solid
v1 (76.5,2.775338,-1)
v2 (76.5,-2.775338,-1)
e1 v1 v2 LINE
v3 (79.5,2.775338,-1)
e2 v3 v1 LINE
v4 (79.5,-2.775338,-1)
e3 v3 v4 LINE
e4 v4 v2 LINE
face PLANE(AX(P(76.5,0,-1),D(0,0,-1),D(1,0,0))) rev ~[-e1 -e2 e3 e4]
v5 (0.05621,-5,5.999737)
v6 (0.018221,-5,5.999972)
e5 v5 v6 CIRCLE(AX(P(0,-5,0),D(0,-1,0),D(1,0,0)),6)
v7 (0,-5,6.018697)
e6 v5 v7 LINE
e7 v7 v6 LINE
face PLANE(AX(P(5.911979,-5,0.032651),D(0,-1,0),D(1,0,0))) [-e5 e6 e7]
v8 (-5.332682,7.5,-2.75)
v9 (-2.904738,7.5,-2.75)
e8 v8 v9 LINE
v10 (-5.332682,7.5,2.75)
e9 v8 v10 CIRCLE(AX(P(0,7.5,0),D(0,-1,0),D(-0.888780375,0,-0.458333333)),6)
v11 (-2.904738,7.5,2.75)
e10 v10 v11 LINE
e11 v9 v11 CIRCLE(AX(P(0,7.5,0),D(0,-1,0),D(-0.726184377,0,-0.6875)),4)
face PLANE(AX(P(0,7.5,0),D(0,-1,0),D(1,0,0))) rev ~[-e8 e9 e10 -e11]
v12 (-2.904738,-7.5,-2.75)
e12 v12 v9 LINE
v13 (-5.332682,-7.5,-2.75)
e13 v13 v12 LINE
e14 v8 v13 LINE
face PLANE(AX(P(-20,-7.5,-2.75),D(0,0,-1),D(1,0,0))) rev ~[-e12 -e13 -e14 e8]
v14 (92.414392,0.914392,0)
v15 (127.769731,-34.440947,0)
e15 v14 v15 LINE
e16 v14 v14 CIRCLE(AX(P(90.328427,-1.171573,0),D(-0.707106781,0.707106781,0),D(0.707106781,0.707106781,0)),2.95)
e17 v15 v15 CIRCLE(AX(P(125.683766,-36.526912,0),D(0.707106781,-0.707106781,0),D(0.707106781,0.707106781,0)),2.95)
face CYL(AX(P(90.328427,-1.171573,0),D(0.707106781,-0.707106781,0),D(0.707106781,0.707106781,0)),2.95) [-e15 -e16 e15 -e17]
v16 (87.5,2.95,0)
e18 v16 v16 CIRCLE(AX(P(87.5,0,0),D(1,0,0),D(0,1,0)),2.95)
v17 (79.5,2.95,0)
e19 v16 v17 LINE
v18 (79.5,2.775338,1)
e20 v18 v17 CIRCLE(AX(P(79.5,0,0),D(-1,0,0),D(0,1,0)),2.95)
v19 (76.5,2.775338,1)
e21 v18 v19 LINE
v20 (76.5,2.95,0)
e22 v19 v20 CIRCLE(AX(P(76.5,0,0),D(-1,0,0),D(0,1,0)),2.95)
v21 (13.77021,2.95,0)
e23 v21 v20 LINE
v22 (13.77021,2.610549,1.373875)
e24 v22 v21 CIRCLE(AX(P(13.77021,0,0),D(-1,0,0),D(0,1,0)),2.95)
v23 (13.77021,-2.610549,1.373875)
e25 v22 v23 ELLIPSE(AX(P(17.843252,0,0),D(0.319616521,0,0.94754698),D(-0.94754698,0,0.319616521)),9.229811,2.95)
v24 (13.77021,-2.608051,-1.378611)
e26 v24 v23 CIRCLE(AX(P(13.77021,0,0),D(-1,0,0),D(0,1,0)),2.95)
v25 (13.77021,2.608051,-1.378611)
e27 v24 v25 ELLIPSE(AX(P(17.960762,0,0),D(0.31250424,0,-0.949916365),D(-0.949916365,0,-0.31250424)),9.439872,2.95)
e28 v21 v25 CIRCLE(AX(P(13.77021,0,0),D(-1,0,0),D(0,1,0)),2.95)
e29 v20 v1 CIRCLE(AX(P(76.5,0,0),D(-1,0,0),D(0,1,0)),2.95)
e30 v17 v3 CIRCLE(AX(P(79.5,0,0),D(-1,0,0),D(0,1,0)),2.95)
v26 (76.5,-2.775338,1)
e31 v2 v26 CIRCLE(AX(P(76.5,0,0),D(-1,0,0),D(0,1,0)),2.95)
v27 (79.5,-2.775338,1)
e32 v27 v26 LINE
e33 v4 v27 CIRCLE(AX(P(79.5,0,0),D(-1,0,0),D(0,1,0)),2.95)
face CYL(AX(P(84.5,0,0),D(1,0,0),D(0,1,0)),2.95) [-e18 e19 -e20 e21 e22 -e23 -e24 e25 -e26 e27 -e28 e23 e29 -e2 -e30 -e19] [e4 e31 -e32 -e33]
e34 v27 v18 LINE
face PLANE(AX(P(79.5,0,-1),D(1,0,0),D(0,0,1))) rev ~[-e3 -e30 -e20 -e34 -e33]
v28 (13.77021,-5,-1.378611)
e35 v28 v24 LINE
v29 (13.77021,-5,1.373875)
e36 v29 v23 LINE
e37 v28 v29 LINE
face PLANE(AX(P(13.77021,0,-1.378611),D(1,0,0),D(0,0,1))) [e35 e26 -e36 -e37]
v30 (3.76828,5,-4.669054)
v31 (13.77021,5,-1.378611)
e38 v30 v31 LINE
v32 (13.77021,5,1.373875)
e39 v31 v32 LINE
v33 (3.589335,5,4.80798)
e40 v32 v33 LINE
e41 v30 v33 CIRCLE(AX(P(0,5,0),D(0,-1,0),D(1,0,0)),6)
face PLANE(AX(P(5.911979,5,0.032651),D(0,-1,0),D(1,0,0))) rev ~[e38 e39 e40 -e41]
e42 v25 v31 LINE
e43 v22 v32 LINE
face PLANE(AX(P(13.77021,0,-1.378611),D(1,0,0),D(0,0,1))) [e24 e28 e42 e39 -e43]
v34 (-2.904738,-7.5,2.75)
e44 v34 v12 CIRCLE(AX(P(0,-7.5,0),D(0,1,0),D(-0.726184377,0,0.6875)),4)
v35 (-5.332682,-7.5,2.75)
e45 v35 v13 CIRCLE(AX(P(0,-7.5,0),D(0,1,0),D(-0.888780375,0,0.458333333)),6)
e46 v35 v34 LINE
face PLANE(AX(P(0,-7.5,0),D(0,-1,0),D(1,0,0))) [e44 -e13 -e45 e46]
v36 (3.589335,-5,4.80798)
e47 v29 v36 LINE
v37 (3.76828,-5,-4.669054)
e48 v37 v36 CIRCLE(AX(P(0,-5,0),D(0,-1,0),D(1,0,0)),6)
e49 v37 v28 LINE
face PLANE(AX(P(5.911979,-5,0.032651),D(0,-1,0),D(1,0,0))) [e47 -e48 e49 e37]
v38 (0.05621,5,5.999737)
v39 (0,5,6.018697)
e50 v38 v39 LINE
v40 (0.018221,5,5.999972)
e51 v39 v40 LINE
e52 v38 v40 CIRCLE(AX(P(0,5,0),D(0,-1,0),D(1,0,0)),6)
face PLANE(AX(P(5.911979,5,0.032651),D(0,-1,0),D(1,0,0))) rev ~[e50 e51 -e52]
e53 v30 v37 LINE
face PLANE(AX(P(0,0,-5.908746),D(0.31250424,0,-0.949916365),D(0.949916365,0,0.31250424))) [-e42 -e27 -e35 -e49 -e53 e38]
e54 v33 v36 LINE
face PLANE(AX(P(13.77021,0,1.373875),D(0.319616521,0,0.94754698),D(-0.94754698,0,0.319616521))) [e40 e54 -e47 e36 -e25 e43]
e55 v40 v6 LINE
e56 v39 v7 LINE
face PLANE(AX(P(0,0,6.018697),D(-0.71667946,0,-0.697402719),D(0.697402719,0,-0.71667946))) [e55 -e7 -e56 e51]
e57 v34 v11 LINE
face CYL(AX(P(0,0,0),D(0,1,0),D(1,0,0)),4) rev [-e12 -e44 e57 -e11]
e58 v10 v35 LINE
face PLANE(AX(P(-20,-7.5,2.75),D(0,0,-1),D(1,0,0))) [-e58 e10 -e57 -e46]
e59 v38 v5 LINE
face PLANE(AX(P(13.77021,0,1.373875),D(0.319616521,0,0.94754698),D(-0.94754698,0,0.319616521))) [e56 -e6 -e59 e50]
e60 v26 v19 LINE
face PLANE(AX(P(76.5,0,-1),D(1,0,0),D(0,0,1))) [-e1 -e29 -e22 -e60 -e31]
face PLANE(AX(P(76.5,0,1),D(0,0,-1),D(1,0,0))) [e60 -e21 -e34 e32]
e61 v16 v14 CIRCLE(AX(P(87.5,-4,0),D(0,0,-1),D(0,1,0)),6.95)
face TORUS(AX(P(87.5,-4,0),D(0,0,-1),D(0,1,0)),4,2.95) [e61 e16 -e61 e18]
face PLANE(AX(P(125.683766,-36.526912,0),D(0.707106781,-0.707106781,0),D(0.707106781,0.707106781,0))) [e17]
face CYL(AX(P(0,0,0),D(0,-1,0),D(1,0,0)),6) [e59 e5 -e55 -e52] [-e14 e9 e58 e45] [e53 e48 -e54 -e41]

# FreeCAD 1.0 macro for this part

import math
import FreeCAD as App
import Part
import Sketcher

V = App.Vector
Q = App.Units.Quantity

doc = App.newDocument("Part")
body = doc.addObject("PartDesign::Body", "Body")

sketch1 = body.newObject("Sketcher::SketchObject", "Sketch")
sketch1.AttachmentSupport = (doc.getObject("XZ_Plane"), [""])
sketch1.MapMode = "FlatFace"
sketch1.addGeometry([
    Part.Circle(V(0, 0, 0), V(0, 0, 1), 6),
    Part.Circle(V(0, 0, 0), V(0, 0, 1), 4),
], False)
sketch1.addConstraint([
    Sketcher.Constraint("Coincident", 0, 3, -1, 1),
    Sketcher.Constraint("Coincident", 1, 3, -1, 1),
    Sketcher.Constraint("Diameter", 0, 12.0),
    Sketcher.Constraint("Diameter", 1, 8.0),
])
pad1 = body.newObject("PartDesign::Pad", "Pad")
pad1.Profile = sketch1
pad1.Length = 15
pad1.Midplane = True

sketch2 = body.newObject("Sketcher::SketchObject", "Sketch001")
sketch2.AttachmentSupport = (doc.getObject("YZ_Plane"), [""])
sketch2.MapMode = "FlatFace"
sketch2.AttachmentOffset = App.Placement(V(0, 0, 4.5), App.Rotation())
sketch2.addGeometry(Part.Circle(V(0, 0, 0), V(0, 0, 1), 3), False)
sketch2.addConstraint([
    Sketcher.Constraint("Coincident", 0, 3, -1, 1),
    Sketcher.Constraint("Diameter", 0, 5.9),
])
pad2 = body.newObject("PartDesign::Pad", "Pad001")
pad2.Profile = sketch2
pad2.Length = 80

sketch3 = body.newObject("Sketcher::SketchObject", "Sketch002")
sketch3.AttachmentSupport = (doc.getObject("XZ_Plane"), [""])
sketch3.MapMode = "FlatFace"
sketch3.AttachmentOffset = App.Placement(V(0, 0, 7.5), App.Rotation())
sketch3.addGeometry([
    Part.LineSegment(V(-20, 3, 0), V(-20, -3, 0)),
    Part.LineSegment(V(-20, -3, 0), V(0, -3, 0)),
    Part.LineSegment(V(0, -3, 0), V(0, 3, 0)),
    Part.LineSegment(V(0, 3, 0), V(-20, 3, 0)),
], False)
sketch3.addConstraint([
    Sketcher.Constraint("Coincident", 0, 2, 1, 1),
    Sketcher.Constraint("Coincident", 1, 2, 2, 1),
    Sketcher.Constraint("Coincident", 2, 2, 3, 1),
    Sketcher.Constraint("Coincident", 3, 2, 0, 1),
    Sketcher.Constraint("Vertical", 0),
    Sketcher.Constraint("Horizontal", 1),
    Sketcher.Constraint("Vertical", 2),
    Sketcher.Constraint("Horizontal", 3),
    Sketcher.Constraint("Symmetric", 1, 2, 2, 2, -1, 1),
    Sketcher.Constraint("DistanceX", 1, 1, 1, 2, 20.0),
    Sketcher.Constraint("DistanceY", 0, 2, 0, 1, 5.5),
])
pocket1 = body.newObject("PartDesign::Pocket", "Pocket")
pocket1.Profile = sketch3
pocket1.Length = 25

sketch4 = body.newObject("Sketcher::SketchObject", "Sketch003")
sketch4.AttachmentSupport = (doc.getObject("XZ_Plane"), [""])
sketch4.MapMode = "FlatFace"
sketch4.addGeometry([
    Part.LineSegment(V(13.8, 1.4, 0), V(0, 6, 0)),
    Part.LineSegment(V(0, 6, 0), V(5.9, 0, 0)),
    Part.LineSegment(V(5.9, 0, 0), V(0, -5.9, 0)),
    Part.LineSegment(V(0, -5.9, 0), V(13.8, -1.4, 0)),
    Part.LineSegment(V(13.8, -1.4, 0), V(13.8, 1.4, 0)),
], False)
sketch4.addConstraint([
    Sketcher.Constraint("Coincident", 0, 2, 1, 1),
    Sketcher.Constraint("Coincident", 1, 2, 2, 1),
    Sketcher.Constraint("Coincident", 2, 2, 3, 1),
    Sketcher.Constraint("Coincident", 3, 2, 4, 1),
    Sketcher.Constraint("Coincident", 4, 2, 0, 1),
    Sketcher.Constraint("Vertical", 4),
    Sketcher.Constraint("PointOnObject", 0, 2, -2),
    Sketcher.Constraint("PointOnObject", 1, 2, -1),
    Sketcher.Constraint("PointOnObject", 2, 2, -2),
    Sketcher.Constraint("DistanceX", 1, 2, 3, 2, 7.913399),
    Sketcher.Constraint("Distance", 1, 8.398032),
    Sketcher.Constraint("DistanceY", 4, 1, 4, 2, 2.752487),
    Sketcher.Constraint("DistanceX", -1, 1, 1, 2, 5.85681),
    Sketcher.Constraint("DistanceY", 3, 2, -1, 1, 1.378611),
    Sketcher.Constraint("DistanceY", 2, 2, 4, 2, 7.282621),
])
pad3 = body.newObject("PartDesign::Pad", "Pad002")
pad3.Profile = sketch4
pad3.Length = 10
pad3.Midplane = True

sketch5 = body.newObject("Sketcher::SketchObject", "Sketch004")
sketch5.AttachmentSupport = (doc.getObject("XZ_Plane"), [""])
sketch5.MapMode = "FlatFace"
sketch5.addGeometry([
    Part.LineSegment(V(76.5, 1, 0), V(76.5, -1, 0)),
    Part.LineSegment(V(76.5, -1, 0), V(79.5, -1, 0)),
    Part.LineSegment(V(79.5, -1, 0), V(79.5, 1, 0)),
    Part.LineSegment(V(79.5, 1, 0), V(76.5, 1, 0)),
], False)
sketch5.addConstraint([
    Sketcher.Constraint("Coincident", 0, 2, 1, 1),
    Sketcher.Constraint("Coincident", 1, 2, 2, 1),
    Sketcher.Constraint("Coincident", 2, 2, 3, 1),
    Sketcher.Constraint("Coincident", 3, 2, 0, 1),
    Sketcher.Constraint("Vertical", 0),
    Sketcher.Constraint("Horizontal", 1),
    Sketcher.Constraint("Vertical", 2),
    Sketcher.Constraint("Horizontal", 3),
    Sketcher.Constraint("DistanceX", 1, 1, 1, 2, 3.0),
    Sketcher.Constraint("DistanceY", 0, 2, 0, 1, 2.0),
    Sketcher.Constraint("DistanceY", 0, 2, -1, 1, 1.0),
    Sketcher.Constraint("DistanceX", -1, 1, 0, 2, 76.5),
])
pocket2 = body.newObject("PartDesign::Pocket", "Pocket001")
pocket2.Profile = sketch5
pocket2.Length = 25
pocket2.Midplane = True

sketch6 = body.newObject("Sketcher::SketchObject", "Sketch005")
sketch6.AttachmentSupport = (doc.getObject("YZ_Plane"), [""])
sketch6.MapMode = "FlatFace"
sketch6.AttachmentOffset = App.Placement(V(0, 0, 84.5), App.Rotation())
sketch6.addGeometry(Part.Circle(V(0, 0, 0), V(0, 0, 1), 3), False)
sketch6.addConstraint([
    Sketcher.Constraint("Coincident", 0, 3, -1, 1),
    Sketcher.Constraint("Diameter", 0, 5.9),
])

sketch7 = body.newObject("Sketcher::SketchObject", "Sketch006")
sketch7.AttachmentSupport = (doc.getObject("XY_Plane"), [""])
sketch7.MapMode = "FlatFace"
sketch7.addGeometry([
    Part.LineSegment(V(84.5, 0, 0), V(87.5, 0, 0)),
    Part.ArcOfCircle(Part.Circle(V(87.5, -4, 0), V(0, 0, 1), 4), math.radians(45), math.radians(90)),
    Part.LineSegment(V(90.3, -1.2, 0), V(125.7, -36.5, 0)),
], False)
sketch7.addConstraint([
    Sketcher.Constraint("Tangent", 0, 2, 1, 2),
    Sketcher.Constraint("Tangent", 1, 1, 2, 1),
    Sketcher.Constraint("Horizontal", 0),
    Sketcher.Constraint("PointOnObject", 0, 1, -1),
    Sketcher.Constraint("Radius", 1, 4.0),
    Sketcher.Constraint("DistanceX", 0, 1, 0, 2, 3.0),
    Sketcher.Constraint("Angle", 2, Q("-45 deg")),
    Sketcher.Constraint("Distance", 2, 50.0),
    Sketcher.Constraint("DistanceX", -1, 1, 1, 3, 87.5),
])
doc.recompute()

additivepipe = body.newObject("PartDesign::AdditivePipe", "AdditivePipe")
additivepipe.Profile = sketch6
additivepipe.Spine = (sketch7, ["Edge1", "Edge2", "Edge3"])

doc.recompute()
